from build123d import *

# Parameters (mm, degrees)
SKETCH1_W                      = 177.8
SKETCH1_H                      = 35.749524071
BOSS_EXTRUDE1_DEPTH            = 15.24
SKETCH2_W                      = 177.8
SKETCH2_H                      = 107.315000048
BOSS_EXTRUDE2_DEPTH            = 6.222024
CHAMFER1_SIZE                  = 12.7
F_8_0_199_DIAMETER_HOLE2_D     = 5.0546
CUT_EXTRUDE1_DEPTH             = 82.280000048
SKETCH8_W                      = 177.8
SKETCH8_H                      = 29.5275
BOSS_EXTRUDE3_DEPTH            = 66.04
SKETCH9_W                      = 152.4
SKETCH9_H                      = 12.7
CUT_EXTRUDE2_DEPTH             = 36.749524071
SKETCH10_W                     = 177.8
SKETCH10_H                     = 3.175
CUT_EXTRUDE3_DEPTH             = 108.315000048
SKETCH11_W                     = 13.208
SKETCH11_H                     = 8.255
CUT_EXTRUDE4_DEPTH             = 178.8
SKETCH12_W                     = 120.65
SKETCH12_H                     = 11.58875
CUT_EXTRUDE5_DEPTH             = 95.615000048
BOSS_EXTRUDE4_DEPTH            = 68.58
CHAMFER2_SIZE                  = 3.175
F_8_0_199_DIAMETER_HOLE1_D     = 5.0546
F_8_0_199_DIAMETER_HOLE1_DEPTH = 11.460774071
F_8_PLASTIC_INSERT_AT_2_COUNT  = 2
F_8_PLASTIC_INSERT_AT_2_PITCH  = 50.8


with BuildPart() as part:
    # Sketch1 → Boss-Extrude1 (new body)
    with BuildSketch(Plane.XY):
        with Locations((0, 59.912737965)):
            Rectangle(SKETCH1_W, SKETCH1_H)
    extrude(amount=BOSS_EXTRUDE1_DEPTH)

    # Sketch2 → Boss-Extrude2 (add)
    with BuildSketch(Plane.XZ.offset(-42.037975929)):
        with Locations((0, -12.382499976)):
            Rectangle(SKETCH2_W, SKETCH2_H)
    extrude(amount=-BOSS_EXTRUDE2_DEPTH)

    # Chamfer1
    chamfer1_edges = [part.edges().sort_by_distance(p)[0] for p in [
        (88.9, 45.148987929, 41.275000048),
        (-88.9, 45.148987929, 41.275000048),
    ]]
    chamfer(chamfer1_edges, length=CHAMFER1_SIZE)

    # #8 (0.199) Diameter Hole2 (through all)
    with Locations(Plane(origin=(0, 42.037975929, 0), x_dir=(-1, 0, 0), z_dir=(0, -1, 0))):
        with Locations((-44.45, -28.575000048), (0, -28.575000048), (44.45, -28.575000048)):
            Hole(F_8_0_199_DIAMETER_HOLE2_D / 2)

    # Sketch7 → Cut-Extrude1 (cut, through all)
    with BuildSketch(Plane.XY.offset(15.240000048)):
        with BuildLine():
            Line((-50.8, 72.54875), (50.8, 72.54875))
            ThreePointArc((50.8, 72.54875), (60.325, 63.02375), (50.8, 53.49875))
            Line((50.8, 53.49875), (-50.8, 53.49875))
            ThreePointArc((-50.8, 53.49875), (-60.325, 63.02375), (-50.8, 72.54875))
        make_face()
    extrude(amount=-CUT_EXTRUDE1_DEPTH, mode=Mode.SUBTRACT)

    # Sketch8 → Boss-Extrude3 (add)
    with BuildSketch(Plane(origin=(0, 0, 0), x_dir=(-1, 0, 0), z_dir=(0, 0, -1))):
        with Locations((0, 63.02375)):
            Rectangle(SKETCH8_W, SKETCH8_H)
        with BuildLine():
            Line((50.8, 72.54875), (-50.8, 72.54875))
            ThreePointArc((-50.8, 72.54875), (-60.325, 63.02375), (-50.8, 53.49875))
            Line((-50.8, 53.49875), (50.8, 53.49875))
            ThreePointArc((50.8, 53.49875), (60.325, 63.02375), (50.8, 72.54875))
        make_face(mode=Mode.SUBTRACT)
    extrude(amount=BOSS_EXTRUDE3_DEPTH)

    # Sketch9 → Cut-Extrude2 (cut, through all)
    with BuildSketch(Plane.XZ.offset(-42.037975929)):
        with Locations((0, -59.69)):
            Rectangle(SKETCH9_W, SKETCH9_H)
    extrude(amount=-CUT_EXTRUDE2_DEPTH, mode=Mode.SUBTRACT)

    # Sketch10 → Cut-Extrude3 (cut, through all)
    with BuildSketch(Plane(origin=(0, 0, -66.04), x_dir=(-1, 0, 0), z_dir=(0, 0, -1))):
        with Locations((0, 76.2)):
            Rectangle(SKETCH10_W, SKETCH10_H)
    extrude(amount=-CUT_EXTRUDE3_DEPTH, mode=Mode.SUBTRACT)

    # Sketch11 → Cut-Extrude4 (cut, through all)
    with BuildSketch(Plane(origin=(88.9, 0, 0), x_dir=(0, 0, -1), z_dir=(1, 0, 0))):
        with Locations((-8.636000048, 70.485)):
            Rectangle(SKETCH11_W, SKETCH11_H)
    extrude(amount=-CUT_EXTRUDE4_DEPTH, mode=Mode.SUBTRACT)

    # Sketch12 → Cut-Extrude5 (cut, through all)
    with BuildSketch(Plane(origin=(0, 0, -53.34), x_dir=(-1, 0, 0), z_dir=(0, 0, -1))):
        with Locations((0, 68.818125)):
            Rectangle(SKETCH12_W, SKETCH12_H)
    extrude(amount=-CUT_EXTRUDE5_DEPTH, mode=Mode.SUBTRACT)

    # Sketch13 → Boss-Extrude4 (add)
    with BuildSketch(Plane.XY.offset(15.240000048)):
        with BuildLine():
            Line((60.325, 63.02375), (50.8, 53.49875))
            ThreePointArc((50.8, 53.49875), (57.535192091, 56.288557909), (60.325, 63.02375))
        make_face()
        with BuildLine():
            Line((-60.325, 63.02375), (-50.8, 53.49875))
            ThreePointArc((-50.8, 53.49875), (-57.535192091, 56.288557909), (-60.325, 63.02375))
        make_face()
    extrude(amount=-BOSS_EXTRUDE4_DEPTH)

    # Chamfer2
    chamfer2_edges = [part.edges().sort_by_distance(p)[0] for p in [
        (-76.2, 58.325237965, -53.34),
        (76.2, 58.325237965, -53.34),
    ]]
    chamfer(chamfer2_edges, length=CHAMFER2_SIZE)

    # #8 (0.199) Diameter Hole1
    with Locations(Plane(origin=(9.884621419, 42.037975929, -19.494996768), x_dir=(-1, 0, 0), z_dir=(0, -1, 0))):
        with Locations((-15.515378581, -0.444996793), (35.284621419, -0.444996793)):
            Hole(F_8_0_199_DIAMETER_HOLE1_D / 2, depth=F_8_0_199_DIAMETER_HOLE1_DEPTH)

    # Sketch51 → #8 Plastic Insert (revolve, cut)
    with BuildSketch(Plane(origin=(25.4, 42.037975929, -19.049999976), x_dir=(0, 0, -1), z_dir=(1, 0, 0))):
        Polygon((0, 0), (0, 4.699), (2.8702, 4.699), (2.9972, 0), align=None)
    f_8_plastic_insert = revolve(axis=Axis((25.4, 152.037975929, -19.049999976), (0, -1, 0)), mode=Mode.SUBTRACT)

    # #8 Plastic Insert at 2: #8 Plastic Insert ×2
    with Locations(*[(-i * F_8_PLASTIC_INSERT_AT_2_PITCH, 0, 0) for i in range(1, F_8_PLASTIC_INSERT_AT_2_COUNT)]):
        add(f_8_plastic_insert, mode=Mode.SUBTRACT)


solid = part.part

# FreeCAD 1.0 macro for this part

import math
import FreeCAD as App
import Part
import Sketcher

V = App.Vector
Q = App.Units.Quantity


def edges_at(feature, points):
    """Names of the edges that pass closest to the given points."""
    edges = feature.Shape.Edges
    near = lambda p: min(range(len(edges)), key=lambda i: edges[i].distToShape(Part.Vertex(*p))[0])
    return sorted({f"Edge{near(p) + 1}" for p in points})

doc = App.newDocument("Part")
body = doc.addObject("PartDesign::Body", "Body")

sketch1 = body.newObject("Sketcher::SketchObject", "Sketch")
sketch1.AttachmentSupport = (doc.getObject("XY_Plane"), [""])
sketch1.MapMode = "FlatFace"
sketch1.addGeometry([
    Part.LineSegment(V(-89, 78, 0), V(-89, 42, 0)),
    Part.LineSegment(V(-89, 42, 0), V(89, 42, 0)),
    Part.LineSegment(V(89, 42, 0), V(89, 78, 0)),
    Part.LineSegment(V(89, 78, 0), V(-89, 78, 0)),
], False)
sketch1.addConstraint([
    Sketcher.Constraint("Coincident", 0, 2, 1, 1),
    Sketcher.Constraint("Coincident", 1, 2, 2, 1),
    Sketcher.Constraint("Coincident", 2, 2, 3, 1),
    Sketcher.Constraint("Coincident", 3, 2, 0, 1),
    Sketcher.Constraint("Vertical", 0),
    Sketcher.Constraint("Horizontal", 1),
    Sketcher.Constraint("Vertical", 2),
    Sketcher.Constraint("Horizontal", 3),
    Sketcher.Constraint("DistanceX", 1, 1, 1, 2, Q("7 in")),
    Sketcher.Constraint("DistanceX", 0, 2, -1, 1, Q("3.5 in")),
    Sketcher.Constraint("DistanceY", -1, 1, 2, 2, Q("3.0625 in")),
    Sketcher.Constraint("DistanceY", 0, 2, 0, 1, Q("35.749524 mm")),
])
pad1 = body.newObject("PartDesign::Pad", "Pad")
pad1.Profile = sketch1
pad1.Length = Q("0.6 in")

sketch2 = body.newObject("Sketcher::SketchObject", "Sketch001")
sketch2.AttachmentSupport = (doc.getObject("XZ_Plane"), [""])
sketch2.MapMode = "FlatFace"
sketch2.AttachmentOffset = App.Placement(V(0, 0, -42.037976), App.Rotation())
sketch2.addGeometry([
    Part.LineSegment(V(-89, 41, 0), V(-89, -66, 0)),
    Part.LineSegment(V(-89, -66, 0), V(89, -66, 0)),
    Part.LineSegment(V(89, -66, 0), V(89, 41, 0)),
    Part.LineSegment(V(89, 41, 0), V(-89, 41, 0)),
], False)
sketch2.addConstraint([
    Sketcher.Constraint("Coincident", 0, 2, 1, 1),
    Sketcher.Constraint("Coincident", 1, 2, 2, 1),
    Sketcher.Constraint("Coincident", 2, 2, 3, 1),
    Sketcher.Constraint("Coincident", 3, 2, 0, 1),
    Sketcher.Constraint("Vertical", 0),
    Sketcher.Constraint("Horizontal", 1),
    Sketcher.Constraint("Vertical", 2),
    Sketcher.Constraint("Horizontal", 3),
    Sketcher.Constraint("DistanceX", 1, 1, 1, 2, Q("7 in")),
    Sketcher.Constraint("DistanceX", 0, 2, -1, 1, Q("3.5 in")),
    Sketcher.Constraint("DistanceY", 0, 2, -1, 1, Q("2.6 in")),
    Sketcher.Constraint("DistanceY", 0, 2, 0, 1, Q("4.225 in")),
])
pad2 = body.newObject("PartDesign::Pad", "Pad001")
pad2.Profile = sketch2
pad2.Length = 6.222024
pad2.Reversed = True
doc.recompute()

chamfer = body.newObject("PartDesign::Chamfer", "Chamfer")
chamfer.Base = (pad2, edges_at(pad2, [(88.9, 45.149, 41.275), (-88.9, 45.149, 41.275)]))
chamfer.Size = Q("0.5 in")

sketch3 = body.newObject("Sketcher::SketchObject", "Sketch002")
sketch3.AttachmentSupport = (doc.getObject("XZ_Plane"), [""])
sketch3.MapMode = "FlatFace"
sketch3.AttachmentOffset = App.Placement(V(0, 0, -42.037976), App.Rotation())
sketch3.addGeometry([
    Part.Circle(V(44.5, 28.6, 0), V(0, 0, 1), 2.5),
    Part.Circle(V(0, 28.6, 0), V(0, 0, 1), 2.5),
    Part.Circle(V(-44.5, 28.6, 0), V(0, 0, 1), 2.5),
], False)
sketch3.addConstraint([
    Sketcher.Constraint("Equal", 0, 1),
    Sketcher.Constraint("Equal", 1, 2),
    Sketcher.Constraint("Symmetric", 0, 3, 2, 3, -2),
    Sketcher.Constraint("PointOnObject", 1, 3, -2),
    Sketcher.Constraint("Horizontal", 0, 3, 1, 3),
    Sketcher.Constraint("Diameter", 0, Q("0.199 in")),
    Sketcher.Constraint("DistanceX", 2, 3, 0, 3, Q("3.5 in")),
    Sketcher.Constraint("DistanceY", -1, 1, 0, 3, Q("1.125 in")),
])
doc.recompute()
hole = body.newObject("PartDesign::Hole", "Hole")
hole.Profile = sketch3
hole.ThreadType = "None"
hole.Diameter = Q("0.199 in")
hole.DepthType = "ThroughAll"

sketch4 = body.newObject("Sketcher::SketchObject", "Sketch003")
sketch4.AttachmentSupport = (doc.getObject("XY_Plane"), [""])
sketch4.MapMode = "FlatFace"
sketch4.AttachmentOffset = App.Placement(V(0, 0, 0.6 * 25.4), App.Rotation())
sketch4.addGeometry([
    Part.LineSegment(V(51, 73, 0), V(-51, 73, 0)),
    Part.ArcOfCircle(Part.Circle(V(-51, 63, 0), V(0, 0, 1), 10), math.radians(90), math.radians(270)),
    Part.LineSegment(V(-51, 53, 0), V(51, 53, 0)),
    Part.ArcOfCircle(Part.Circle(V(51, 63, 0), V(0, 0, 1), 10), math.radians(-90), math.radians(90)),
], False)
sketch4.addConstraint([
    Sketcher.Constraint("Tangent", 0, 2, 1, 1),
    Sketcher.Constraint("Tangent", 1, 2, 2, 1),
    Sketcher.Constraint("Tangent", 2, 2, 3, 1),
    Sketcher.Constraint("Tangent", 3, 2, 0, 1),
    Sketcher.Constraint("Horizontal", 0),
    Sketcher.Constraint("Horizontal", 2),
    Sketcher.Constraint("DistanceX", 0, 2, 0, 1, Q("4 in")),
    Sketcher.Constraint("DistanceX", 1, 3, -1, 1, Q("2 in")),
    Sketcher.Constraint("Radius", 1, Q("0.375 in")),
    Sketcher.Constraint("DistanceY", -1, 1, 1, 3, Q("63.02375 mm")),
])
pocket1 = body.newObject("PartDesign::Pocket", "Pocket")
pocket1.Profile = sketch4
pocket1.Type = "ThroughAll"

sketch5 = body.newObject("Sketcher::SketchObject", "Sketch004")
sketch5.AttachmentSupport = (doc.getObject("XY_Plane"), [""])
sketch5.MapMode = "FlatFace"
sketch5.addGeometry([
    Part.LineSegment(V(89, 78, 0), V(89, 48, 0)),
    Part.LineSegment(V(89, 48, 0), V(-89, 48, 0)),
    Part.LineSegment(V(-89, 48, 0), V(-89, 78, 0)),
    Part.LineSegment(V(-89, 78, 0), V(89, 78, 0)),
    Part.LineSegment(V(51, 73, 0), V(-51, 73, 0)),
    Part.ArcOfCircle(Part.Circle(V(-51, 63, 0), V(0, 0, 1), 10), math.radians(90), math.radians(270)),
    Part.LineSegment(V(-51, 53, 0), V(51, 53, 0)),
    Part.ArcOfCircle(Part.Circle(V(51, 63, 0), V(0, 0, 1), 10), math.radians(-90), math.radians(90)),
], False)
sketch5.addConstraint([
    Sketcher.Constraint("Coincident", 0, 2, 1, 1),
    Sketcher.Constraint("Coincident", 1, 2, 2, 1),
    Sketcher.Constraint("Coincident", 2, 2, 3, 1),
    Sketcher.Constraint("Coincident", 3, 2, 0, 1),
    Sketcher.Constraint("Tangent", 4, 2, 5, 1),
    Sketcher.Constraint("Tangent", 5, 2, 6, 1),
    Sketcher.Constraint("Tangent", 6, 2, 7, 1),
    Sketcher.Constraint("Tangent", 7, 2, 4, 1),
    Sketcher.Constraint("Vertical", 0),
    Sketcher.Constraint("Horizontal", 1),
    Sketcher.Constraint("Vertical", 2),
    Sketcher.Constraint("Horizontal", 3),
    Sketcher.Constraint("Horizontal", 4),
    Sketcher.Constraint("Horizontal", 6),
    Sketcher.Constraint("DistanceX", 1, 2, 1, 1, Q("7 in")),
    Sketcher.Constraint("DistanceX", 4, 2, 4, 1, Q("4 in")),
    Sketcher.Constraint("DistanceX", 5, 3, -1, 1, Q("2 in")),
    Sketcher.Constraint("Radius", 5, Q("0.375 in")),
    Sketcher.Constraint("DistanceX", -1, 1, 0, 2, Q("3.5 in")),
    Sketcher.Constraint("DistanceY", -1, 1, 0, 2, Q("1.9 in")),
    Sketcher.Constraint("DistanceY", 0, 2, 0, 1, Q("1.1625 in")),
    Sketcher.Constraint("DistanceY", -1, 1, 5, 3, Q("63.02375 mm")),
])
pad3 = body.newObject("PartDesign::Pad", "Pad002")
pad3.Profile = sketch5
pad3.Length = Q("2.6 in")
pad3.Reversed = True

sketch6 = body.newObject("Sketcher::SketchObject", "Sketch005")
sketch6.AttachmentSupport = (doc.getObject("XZ_Plane"), [""])
sketch6.MapMode = "FlatFace"
sketch6.AttachmentOffset = App.Placement(V(0, 0, -42.037976), App.Rotation())
sketch6.addGeometry([
    Part.LineSegment(V(-76, -53, 0), V(-76, -66, 0)),
    Part.LineSegment(V(-76, -66, 0), V(76, -66, 0)),
    Part.LineSegment(V(76, -66, 0), V(76, -53, 0)),
    Part.LineSegment(V(76, -53, 0), V(-76, -53, 0)),
], False)
sketch6.addConstraint([
    Sketcher.Constraint("Coincident", 0, 2, 1, 1),
    Sketcher.Constraint("Coincident", 1, 2, 2, 1),
    Sketcher.Constraint("Coincident", 2, 2, 3, 1),
    Sketcher.Constraint("Coincident", 3, 2, 0, 1),
    Sketcher.Constraint("Vertical", 0),
    Sketcher.Constraint("Horizontal", 1),
    Sketcher.Constraint("Vertical", 2),
    Sketcher.Constraint("Horizontal", 3),
    Sketcher.Constraint("DistanceX", 1, 1, 1, 2, Q("6 in")),
    Sketcher.Constraint("DistanceY", 0, 2, 0, 1, Q("0.5 in")),
    Sketcher.Constraint("DistanceX", 0, 2, -1, 1, Q("3 in")),
    Sketcher.Constraint("DistanceY", 0, 2, -1, 1, Q("2.6 in")),
])
pocket2 = body.newObject("PartDesign::Pocket", "Pocket001")
pocket2.Profile = sketch6
pocket2.Type = "ThroughAll"

sketch7 = body.newObject("Sketcher::SketchObject", "Sketch006")
sketch7.AttachmentSupport = (doc.getObject("XY_Plane"), [""])
sketch7.MapMode = "FlatFace"
sketch7.AttachmentOffset = App.Placement(V(0, 0, -2.6 * 25.4), App.Rotation())
sketch7.addGeometry([
    Part.LineSegment(V(88.9, 77.8, 0), V(88.9, 74.6, 0)),
    Part.LineSegment(V(88.9, 74.6, 0), V(-88.9, 74.6, 0)),
    Part.LineSegment(V(-88.9, 74.6, 0), V(-88.9, 77.8, 0)),
    Part.LineSegment(V(-88.9, 77.8, 0), V(88.9, 77.8, 0)),
], False)
sketch7.addConstraint([
    Sketcher.Constraint("Coincident", 0, 2, 1, 1),
    Sketcher.Constraint("Coincident", 1, 2, 2, 1),
    Sketcher.Constraint("Coincident", 2, 2, 3, 1),
    Sketcher.Constraint("Coincident", 3, 2, 0, 1),
    Sketcher.Constraint("Vertical", 0),
    Sketcher.Constraint("Horizontal", 1),
    Sketcher.Constraint("Vertical", 2),
    Sketcher.Constraint("Horizontal", 3),
    Sketcher.Constraint("DistanceX", 1, 2, 1, 1, Q("7 in")),
    Sketcher.Constraint("DistanceX", -1, 1, 0, 2, Q("3.5 in")),
    Sketcher.Constraint("DistanceY", 0, 2, 0, 1, Q("0.125 in")),
    Sketcher.Constraint("DistanceY", -1, 1, 0, 2, Q("2.9375 in")),
])
pocket3 = body.newObject("PartDesign::Pocket", "Pocket002")
pocket3.Profile = sketch7
pocket3.Type = "ThroughAll"
pocket3.Reversed = True

sketch8 = body.newObject("Sketcher::SketchObject", "Sketch007")
sketch8.AttachmentSupport = (doc.getObject("YZ_Plane"), [""])
sketch8.MapMode = "FlatFace"
sketch8.AttachmentOffset = App.Placement(V(0, 0, 3.5 * 25.4), App.Rotation())
sketch8.addGeometry([
    Part.LineSegment(V(75, 15, 0), V(66, 15, 0)),
    Part.LineSegment(V(66, 15, 0), V(66, 2, 0)),
    Part.LineSegment(V(66, 2, 0), V(75, 2, 0)),
    Part.LineSegment(V(75, 2, 0), V(75, 15, 0)),
], False)
sketch8.addConstraint([
    Sketcher.Constraint("Coincident", 0, 2, 1, 1),
    Sketcher.Constraint("Coincident", 1, 2, 2, 1),
    Sketcher.Constraint("Coincident", 2, 2, 3, 1),
    Sketcher.Constraint("Coincident", 3, 2, 0, 1),
    Sketcher.Constraint("Horizontal", 0),
    Sketcher.Constraint("Vertical", 1),
    Sketcher.Constraint("Horizontal", 2),
    Sketcher.Constraint("Vertical", 3),
    Sketcher.Constraint("DistanceY", 1, 2, 1, 1, Q("0.52 in")),
    Sketcher.Constraint("DistanceY", -1, 1, 0, 2, Q("0.6 in")),
    Sketcher.Constraint("DistanceX", 0, 2, 0, 1, Q("0.325 in")),
    Sketcher.Constraint("DistanceX", -1, 1, 2, 2, Q("2.9375 in")),
])
pocket4 = body.newObject("PartDesign::Pocket", "Pocket003")
pocket4.Profile = sketch8
pocket4.Type = "ThroughAll"

sketch9 = body.newObject("Sketcher::SketchObject", "Sketch008")
sketch9.AttachmentSupport = (doc.getObject("XY_Plane"), [""])
sketch9.MapMode = "FlatFace"
sketch9.AttachmentOffset = App.Placement(V(0, 0, -2.1 * 25.4), App.Rotation())
sketch9.addGeometry([
    Part.LineSegment(V(60, 75, 0), V(60, 63, 0)),
    Part.LineSegment(V(60, 63, 0), V(-60, 63, 0)),
    Part.LineSegment(V(-60, 63, 0), V(-60, 75, 0)),
    Part.LineSegment(V(-60, 75, 0), V(60, 75, 0)),
], False)
sketch9.addConstraint([
    Sketcher.Constraint("Coincident", 0, 2, 1, 1),
    Sketcher.Constraint("Coincident", 1, 2, 2, 1),
    Sketcher.Constraint("Coincident", 2, 2, 3, 1),
    Sketcher.Constraint("Coincident", 3, 2, 0, 1),
    Sketcher.Constraint("Vertical", 0),
    Sketcher.Constraint("Horizontal", 1),
    Sketcher.Constraint("Vertical", 2),
    Sketcher.Constraint("Horizontal", 3),
    Sketcher.Constraint("DistanceX", 1, 2, 1, 1, Q("4.75 in")),
    Sketcher.Constraint("DistanceX", -1, 1, 0, 2, Q("2.375 in")),
    Sketcher.Constraint("DistanceY", -1, 1, 2, 2, Q("2.9375 in")),
    Sketcher.Constraint("DistanceY", 0, 2, 0, 1, Q("11.58875 mm")),
])
pocket5 = body.newObject("PartDesign::Pocket", "Pocket004")
pocket5.Profile = sketch9
pocket5.Type = "ThroughAll"
pocket5.Reversed = True

sketch10 = body.newObject("Sketcher::SketchObject", "Sketch009")
sketch10.AttachmentSupport = (doc.getObject("XY_Plane"), [""])
sketch10.MapMode = "FlatFace"
sketch10.AttachmentOffset = App.Placement(V(0, 0, 0.6 * 25.4), App.Rotation())
sketch10.addGeometry([
    Part.LineSegment(V(60, 63, 0), V(51, 53, 0)),
    Part.ArcOfCircle(Part.Circle(V(51, 63, 0), V(0, 0, 1), 10), math.radians(-90), math.radians(0)),
    Part.LineSegment(V(-51, 53, 0), V(-60, 63, 0)),
    Part.ArcOfCircle(Part.Circle(V(-51, 63, 0), V(0, 0, 1), 10), math.radians(180), math.radians(270)),
], False)
sketch10.addConstraint([
    Sketcher.Constraint("Coincident", 0, 1, 1, 2),
    Sketcher.Constraint("Coincident", 1, 1, 0, 2),
    Sketcher.Constraint("Coincident", 2, 1, 3, 2),
    Sketcher.Constraint("Coincident", 3, 1, 2, 2),
    Sketcher.Constraint("Equal", 1, 3),
    Sketcher.Constraint("Symmetric", 1, 3, 3, 3, -2),
    Sketcher.Constraint("Perpendicular", 0, 2),
    Sketcher.Constraint("Horizontal", 3, 3, 0, 1),
    Sketcher.Constraint("Horizontal", 0, 1, 3, 1),
    Sketcher.Constraint("Vertical", 3, 3, 2, 1),
    Sketcher.Constraint("DistanceX", -1, 1, 1, 3, Q("2 in")),
    Sketcher.Constraint("Radius", 1, Q("0.375 in")),
    Sketcher.Constraint("DistanceY", -1, 1, 1, 3, Q("63.02375 mm")),
])
pad4 = body.newObject("PartDesign::Pad", "Pad003")
pad4.Profile = sketch10
pad4.Length = Q("2.7 in")
pad4.Reversed = True
doc.recompute()

chamfer2 = body.newObject("PartDesign::Chamfer", "Chamfer001")
chamfer2.Base = (pad4, edges_at(pad4, [(-76.2, 58.325, -53.34), (76.2, 58.325, -53.34)]))
chamfer2.Size = Q("0.125 in")

sketch11 = body.newObject("Sketcher::SketchObject", "Sketch010")
sketch11.AttachmentSupport = (doc.getObject("XZ_Plane"), [""])
sketch11.MapMode = "FlatFace"
sketch11.AttachmentOffset = App.Placement(V(0, 0, -42.037976), App.Rotation())
sketch11.addGeometry([
    Part.Circle(V(25.4, -19, 0), V(0, 0, 1), 2.5),
    Part.Circle(V(-25.4, -19, 0), V(0, 0, 1), 2.5),
], False)
sketch11.addConstraint([
    Sketcher.Constraint("Equal", 0, 1),
    Sketcher.Constraint("Symmetric", 0, 3, 1, 3, -2),
    Sketcher.Constraint("Diameter", 0, Q("0.199 in")),
    Sketcher.Constraint("DistanceX", -1, 1, 0, 3, Q("1 in")),
    Sketcher.Constraint("DistanceY", 0, 3, -1, 1, Q("0.75 in")),
])
doc.recompute()
hole2 = body.newObject("PartDesign::Hole", "Hole001")
hole2.Profile = sketch11
hole2.ThreadType = "None"
hole2.Diameter = Q("0.199 in")
hole2.DepthType = "Dimension"
hole2.Depth = 11.460774
hole2.DrillPoint = "Flat"

sketch12 = body.newObject("Sketcher::SketchObject", "Sketch011")
sketch12.AttachmentSupport = (doc.getObject("YZ_Plane"), [""])
sketch12.MapMode = "FlatFace"
sketch12.AttachmentOffset = App.Placement(V(0, 0, 1 * 25.4), App.Rotation())
sketch12.addGeometry([
    Part.LineSegment(V(46.7, -19, 0), V(42, -19, 0)),
    Part.LineSegment(V(42, -19, 0), V(42, -22, 0)),
    Part.LineSegment(V(42, -22, 0), V(46.7, -21.9, 0)),
    Part.LineSegment(V(46.7, -21.9, 0), V(46.7, -19, 0)),
], False)
sketch12.addGeometry(Part.LineSegment(V(46.7, -19, 0), V(42, -19, 0)), True)
sketch12.addConstraint([
    Sketcher.Constraint("Coincident", 0, 2, 1, 1),
    Sketcher.Constraint("Coincident", 1, 2, 2, 1),
    Sketcher.Constraint("Coincident", 2, 2, 3, 1),
    Sketcher.Constraint("Coincident", 3, 2, 0, 1),
    Sketcher.Constraint("Horizontal", 0),
    Sketcher.Constraint("Vertical", 1),
    Sketcher.Constraint("Vertical", 3),
    Sketcher.Constraint("Horizontal", 4),
    Sketcher.Constraint("Coincident", 4, 1, 3, 2),
    Sketcher.Constraint("Vertical", 1, 2, 4, 2),
    Sketcher.Constraint("DistanceX", 0, 2, 0, 1, Q("0.185 in")),
    Sketcher.Constraint("DistanceY", 1, 2, 1, 1, Q("0.118 in")),
    Sketcher.Constraint("DistanceY", 3, 1, 3, 2, Q("0.113 in")),
    Sketcher.Constraint("DistanceY", 0, 2, -1, 1, Q("0.75 in")),
    Sketcher.Constraint("DistanceX", -1, 1, 0, 2, Q("42.037976 mm")),
])
groove = body.newObject("PartDesign::Groove", "Groove")
groove.Profile = sketch12
groove.ReferenceAxis = (sketch12, ["Axis0"])
groove.Angle = 360
doc.recompute()

linearpattern = body.newObject("PartDesign::LinearPattern", "LinearPattern")
linearpattern.Originals = [groove]
linearpattern.Direction = (doc.getObject("X_Axis"), [""])
linearpattern.Mode = "offset"
linearpattern.Offset = Q("2 in")
linearpattern.Occurrences = 2
linearpattern.Reversed = True
body.Tip = linearpattern

doc.recompute()
